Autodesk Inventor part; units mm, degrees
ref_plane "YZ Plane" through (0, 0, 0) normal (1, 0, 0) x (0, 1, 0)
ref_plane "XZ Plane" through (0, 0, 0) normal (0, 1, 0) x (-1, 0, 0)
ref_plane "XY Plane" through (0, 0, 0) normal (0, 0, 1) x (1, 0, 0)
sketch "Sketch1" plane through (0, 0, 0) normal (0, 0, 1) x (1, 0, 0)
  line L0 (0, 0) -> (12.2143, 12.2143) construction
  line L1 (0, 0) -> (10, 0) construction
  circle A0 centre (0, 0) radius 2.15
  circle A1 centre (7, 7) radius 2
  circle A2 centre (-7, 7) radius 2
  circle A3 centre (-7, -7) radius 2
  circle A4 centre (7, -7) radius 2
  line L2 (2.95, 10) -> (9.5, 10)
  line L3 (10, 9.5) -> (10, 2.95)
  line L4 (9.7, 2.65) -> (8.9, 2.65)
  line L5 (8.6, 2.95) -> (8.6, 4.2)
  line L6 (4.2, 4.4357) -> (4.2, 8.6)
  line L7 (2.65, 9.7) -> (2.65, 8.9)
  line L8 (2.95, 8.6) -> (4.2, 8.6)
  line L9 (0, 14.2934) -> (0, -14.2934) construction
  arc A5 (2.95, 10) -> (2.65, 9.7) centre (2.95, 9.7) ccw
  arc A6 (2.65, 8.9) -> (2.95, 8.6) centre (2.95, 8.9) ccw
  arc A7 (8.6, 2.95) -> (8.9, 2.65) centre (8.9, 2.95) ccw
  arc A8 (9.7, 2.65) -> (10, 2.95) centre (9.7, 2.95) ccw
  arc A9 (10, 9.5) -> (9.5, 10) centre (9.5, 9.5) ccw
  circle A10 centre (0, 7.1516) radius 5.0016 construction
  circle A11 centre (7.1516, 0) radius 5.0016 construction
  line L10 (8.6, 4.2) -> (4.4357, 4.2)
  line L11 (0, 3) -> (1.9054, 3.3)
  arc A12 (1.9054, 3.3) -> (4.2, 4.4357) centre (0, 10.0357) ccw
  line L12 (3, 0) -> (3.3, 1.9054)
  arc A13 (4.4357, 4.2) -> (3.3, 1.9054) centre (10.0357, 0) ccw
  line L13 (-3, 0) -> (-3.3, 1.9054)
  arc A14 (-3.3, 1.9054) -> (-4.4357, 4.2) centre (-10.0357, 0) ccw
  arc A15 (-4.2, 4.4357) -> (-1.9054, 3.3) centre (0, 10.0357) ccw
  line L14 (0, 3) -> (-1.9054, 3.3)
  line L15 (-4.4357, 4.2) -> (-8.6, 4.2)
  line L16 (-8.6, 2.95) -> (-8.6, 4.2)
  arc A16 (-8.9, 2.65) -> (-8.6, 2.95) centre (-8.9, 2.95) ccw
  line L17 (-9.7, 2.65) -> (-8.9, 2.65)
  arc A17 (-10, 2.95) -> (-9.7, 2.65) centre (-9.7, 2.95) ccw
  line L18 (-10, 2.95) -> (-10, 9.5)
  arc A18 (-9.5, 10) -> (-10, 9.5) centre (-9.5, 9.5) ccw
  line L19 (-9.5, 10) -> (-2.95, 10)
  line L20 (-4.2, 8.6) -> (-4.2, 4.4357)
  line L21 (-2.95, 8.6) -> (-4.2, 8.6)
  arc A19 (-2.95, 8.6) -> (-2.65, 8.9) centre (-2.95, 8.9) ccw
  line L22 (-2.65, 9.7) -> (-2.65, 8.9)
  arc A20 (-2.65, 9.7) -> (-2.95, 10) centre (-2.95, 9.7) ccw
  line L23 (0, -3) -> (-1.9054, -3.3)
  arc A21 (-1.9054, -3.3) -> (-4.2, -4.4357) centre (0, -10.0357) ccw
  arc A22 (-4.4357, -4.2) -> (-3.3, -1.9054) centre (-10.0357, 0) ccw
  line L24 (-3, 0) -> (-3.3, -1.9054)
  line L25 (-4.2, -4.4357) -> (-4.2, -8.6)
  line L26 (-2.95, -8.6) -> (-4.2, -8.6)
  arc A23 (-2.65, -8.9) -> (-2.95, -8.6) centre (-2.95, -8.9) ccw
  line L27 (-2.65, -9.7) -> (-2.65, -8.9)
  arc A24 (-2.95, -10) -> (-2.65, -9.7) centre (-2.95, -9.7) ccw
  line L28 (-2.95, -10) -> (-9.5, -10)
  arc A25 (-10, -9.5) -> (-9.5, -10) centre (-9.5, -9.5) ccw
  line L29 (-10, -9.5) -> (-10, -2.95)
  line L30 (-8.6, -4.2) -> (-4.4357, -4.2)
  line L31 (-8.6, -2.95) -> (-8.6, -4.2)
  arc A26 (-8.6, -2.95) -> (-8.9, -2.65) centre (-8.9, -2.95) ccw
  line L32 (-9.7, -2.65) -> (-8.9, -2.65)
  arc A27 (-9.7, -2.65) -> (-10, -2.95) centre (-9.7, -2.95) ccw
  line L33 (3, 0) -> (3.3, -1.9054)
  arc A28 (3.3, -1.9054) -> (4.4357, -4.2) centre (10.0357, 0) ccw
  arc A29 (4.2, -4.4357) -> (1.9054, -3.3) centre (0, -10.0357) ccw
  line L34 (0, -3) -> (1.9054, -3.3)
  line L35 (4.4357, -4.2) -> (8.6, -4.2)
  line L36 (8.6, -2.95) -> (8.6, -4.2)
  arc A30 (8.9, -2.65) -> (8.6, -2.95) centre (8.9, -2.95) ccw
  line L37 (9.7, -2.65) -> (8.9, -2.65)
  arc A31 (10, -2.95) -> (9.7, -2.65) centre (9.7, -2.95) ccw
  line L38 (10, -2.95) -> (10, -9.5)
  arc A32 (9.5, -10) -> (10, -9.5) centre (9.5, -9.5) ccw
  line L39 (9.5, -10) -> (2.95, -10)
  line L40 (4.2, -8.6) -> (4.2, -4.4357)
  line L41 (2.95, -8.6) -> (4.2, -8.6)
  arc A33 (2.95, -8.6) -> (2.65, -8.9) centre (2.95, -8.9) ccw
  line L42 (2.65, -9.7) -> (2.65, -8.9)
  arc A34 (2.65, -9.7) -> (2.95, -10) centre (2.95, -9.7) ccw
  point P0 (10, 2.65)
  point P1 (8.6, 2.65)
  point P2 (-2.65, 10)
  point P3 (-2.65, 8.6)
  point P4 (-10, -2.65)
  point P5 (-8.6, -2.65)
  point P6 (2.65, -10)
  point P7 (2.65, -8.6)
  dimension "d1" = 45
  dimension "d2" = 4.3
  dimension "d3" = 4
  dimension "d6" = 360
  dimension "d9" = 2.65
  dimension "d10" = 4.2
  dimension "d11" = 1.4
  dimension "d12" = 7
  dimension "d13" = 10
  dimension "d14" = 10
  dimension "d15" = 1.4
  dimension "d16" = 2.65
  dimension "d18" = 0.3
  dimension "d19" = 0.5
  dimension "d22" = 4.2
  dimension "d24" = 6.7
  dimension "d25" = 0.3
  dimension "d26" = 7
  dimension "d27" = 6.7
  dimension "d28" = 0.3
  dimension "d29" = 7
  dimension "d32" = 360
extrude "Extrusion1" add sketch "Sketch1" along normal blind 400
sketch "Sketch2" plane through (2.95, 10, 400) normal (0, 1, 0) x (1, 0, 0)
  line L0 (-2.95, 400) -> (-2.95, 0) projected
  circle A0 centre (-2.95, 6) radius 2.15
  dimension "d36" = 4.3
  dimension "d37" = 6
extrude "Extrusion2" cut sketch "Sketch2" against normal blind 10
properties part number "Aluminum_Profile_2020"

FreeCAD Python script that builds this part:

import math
import FreeCAD as App
import Part
import Sketcher
from FreeCAD import Vector
Q = App.Units.Quantity

doc = App.newDocument("Part")
body = doc.addObject("PartDesign::Body", "Body")

# Sketch on XY plane
sketch1 = doc.addObject("Sketcher::SketchObject", "Sketch")
body.addObject(sketch1)
sketch1.AttachmentSupport = (doc.XY_Plane, [""])
sketch1.MapMode = "FlatFace"
sketch1.addGeometry([
    Part.LineSegment(Vector(9.5, 10, 0), Vector(2.95, 10, 0)),  # 0
    Part.ArcOfCircle(Part.Circle(Vector(2.95, 9.7, 0), Vector(0, 0, 1), 0.3), math.radians(90), math.radians(180)),  # 1
    Part.LineSegment(Vector(2.65, 9.7, 0), Vector(2.65, 8.9, 0)),  # 2
    Part.ArcOfCircle(Part.Circle(Vector(2.95, 8.9, 0), Vector(0, 0, 1), 0.3), math.radians(180), math.radians(270)),  # 3
    Part.LineSegment(Vector(2.95, 8.6, 0), Vector(4.2, 8.6, 0)),  # 4
    Part.LineSegment(Vector(4.2, 8.6, 0), Vector(4.2, 4.44, 0)),  # 5
    Part.ArcOfCircle(Part.Circle(Vector(0, 10.04, 0), Vector(0, 0, 1), 7), math.radians(-74), math.radians(-53)),  # 6
    Part.LineSegment(Vector(1.91, 3.3, 0), Vector(0, 3, 0)),  # 7
    Part.LineSegment(Vector(0, 3, 0), Vector(-1.91, 3.3, 0)),  # 8
    Part.ArcOfCircle(Part.Circle(Vector(0, 10.04, 0), Vector(0, 0, 1), 7), math.radians(-127), math.radians(-106)),  # 9
    Part.LineSegment(Vector(-4.2, 4.44, 0), Vector(-4.2, 8.6, 0)),  # 10
    Part.LineSegment(Vector(-4.2, 8.6, 0), Vector(-2.95, 8.6, 0)),  # 11
    Part.ArcOfCircle(Part.Circle(Vector(-2.95, 8.9, 0), Vector(0, 0, 1), 0.3), math.radians(-90), math.radians(0)),  # 12
    Part.LineSegment(Vector(-2.65, 8.9, 0), Vector(-2.65, 9.7, 0)),  # 13
    Part.ArcOfCircle(Part.Circle(Vector(-2.95, 9.7, 0), Vector(0, 0, 1), 0.3), math.radians(0), math.radians(90)),  # 14
    Part.LineSegment(Vector(-2.95, 10, 0), Vector(-9.5, 10, 0)),  # 15
    Part.ArcOfCircle(Part.Circle(Vector(-9.5, 9.5, 0), Vector(0, 0, 1), 0.5), math.radians(90), math.radians(180)),  # 16
    Part.LineSegment(Vector(-10, 9.5, 0), Vector(-10, 2.95, 0)),  # 17
    Part.ArcOfCircle(Part.Circle(Vector(-9.7, 2.95, 0), Vector(0, 0, 1), 0.3), math.radians(180), math.radians(270)),  # 18
    Part.LineSegment(Vector(-9.7, 2.65, 0), Vector(-8.9, 2.65, 0)),  # 19
    Part.ArcOfCircle(Part.Circle(Vector(-8.9, 2.95, 0), Vector(0, 0, 1), 0.3), math.radians(-90), math.radians(0)),  # 20
    Part.LineSegment(Vector(-8.6, 2.95, 0), Vector(-8.6, 4.2, 0)),  # 21
    Part.LineSegment(Vector(-8.6, 4.2, 0), Vector(-4.44, 4.2, 0)),  # 22
    Part.ArcOfCircle(Part.Circle(Vector(-10.04, 0, 0), Vector(0, 0, 1), 7), math.radians(16), math.radians(37)),  # 23
    Part.LineSegment(Vector(-3.3, 1.91, 0), Vector(-3, 0, 0)),  # 24
    Part.LineSegment(Vector(-3, 0, 0), Vector(-3.3, -1.91, 0)),  # 25
    Part.ArcOfCircle(Part.Circle(Vector(-10.04, 0, 0), Vector(0, 0, 1), 7), math.radians(-37), math.radians(-16)),  # 26
    Part.LineSegment(Vector(-4.44, -4.2, 0), Vector(-8.6, -4.2, 0)),  # 27
    Part.LineSegment(Vector(-8.6, -4.2, 0), Vector(-8.6, -2.95, 0)),  # 28
    Part.ArcOfCircle(Part.Circle(Vector(-8.9, -2.95, 0), Vector(0, 0, 1), 0.3), math.radians(0), math.radians(90)),  # 29
    Part.LineSegment(Vector(-8.9, -2.65, 0), Vector(-9.7, -2.65, 0)),  # 30
    Part.ArcOfCircle(Part.Circle(Vector(-9.7, -2.95, 0), Vector(0, 0, 1), 0.3), math.radians(90), math.radians(180)),  # 31
    Part.LineSegment(Vector(-10, -2.95, 0), Vector(-10, -9.5, 0)),  # 32
    Part.ArcOfCircle(Part.Circle(Vector(-9.5, -9.5, 0), Vector(0, 0, 1), 0.5), math.radians(180), math.radians(270)),  # 33
    Part.LineSegment(Vector(-9.5, -10, 0), Vector(-2.95, -10, 0)),  # 34
    Part.ArcOfCircle(Part.Circle(Vector(-2.95, -9.7, 0), Vector(0, 0, 1), 0.3), math.radians(-90), math.radians(0)),  # 35
    Part.LineSegment(Vector(-2.65, -9.7, 0), Vector(-2.65, -8.9, 0)),  # 36
    Part.ArcOfCircle(Part.Circle(Vector(-2.95, -8.9, 0), Vector(0, 0, 1), 0.3), math.radians(0), math.radians(90)),  # 37
    Part.LineSegment(Vector(-2.95, -8.6, 0), Vector(-4.2, -8.6, 0)),  # 38
    Part.LineSegment(Vector(-4.2, -8.6, 0), Vector(-4.2, -4.44, 0)),  # 39
    Part.ArcOfCircle(Part.Circle(Vector(0, -10.04, 0), Vector(0, 0, 1), 7), math.radians(106), math.radians(127)),  # 40
    Part.LineSegment(Vector(-1.91, -3.3, 0), Vector(0, -3, 0)),  # 41
    Part.LineSegment(Vector(0, -3, 0), Vector(1.91, -3.3, 0)),  # 42
    Part.ArcOfCircle(Part.Circle(Vector(0, -10.04, 0), Vector(0, 0, 1), 7), math.radians(53), math.radians(74)),  # 43
    Part.LineSegment(Vector(4.2, -4.44, 0), Vector(4.2, -8.6, 0)),  # 44
    Part.LineSegment(Vector(4.2, -8.6, 0), Vector(2.95, -8.6, 0)),  # 45
    Part.ArcOfCircle(Part.Circle(Vector(2.95, -8.9, 0), Vector(0, 0, 1), 0.3), math.radians(90), math.radians(180)),  # 46
    Part.LineSegment(Vector(2.65, -8.9, 0), Vector(2.65, -9.7, 0)),  # 47
    Part.ArcOfCircle(Part.Circle(Vector(2.95, -9.7, 0), Vector(0, 0, 1), 0.3), math.radians(180), math.radians(270)),  # 48
    Part.LineSegment(Vector(2.95, -10, 0), Vector(9.5, -10, 0)),  # 49
    Part.ArcOfCircle(Part.Circle(Vector(9.5, -9.5, 0), Vector(0, 0, 1), 0.5), math.radians(-90), math.radians(0)),  # 50
    Part.LineSegment(Vector(10, -9.5, 0), Vector(10, -2.95, 0)),  # 51
    Part.ArcOfCircle(Part.Circle(Vector(9.7, -2.95, 0), Vector(0, 0, 1), 0.3), math.radians(0), math.radians(90)),  # 52
    Part.LineSegment(Vector(9.7, -2.65, 0), Vector(8.9, -2.65, 0)),  # 53
    Part.ArcOfCircle(Part.Circle(Vector(8.9, -2.95, 0), Vector(0, 0, 1), 0.3), math.radians(90), math.radians(180)),  # 54
    Part.LineSegment(Vector(8.6, -2.95, 0), Vector(8.6, -4.2, 0)),  # 55
    Part.LineSegment(Vector(8.6, -4.2, 0), Vector(4.44, -4.2, 0)),  # 56
    Part.ArcOfCircle(Part.Circle(Vector(10.04, 0, 0), Vector(0, 0, 1), 7), math.radians(-164), math.radians(-143)),  # 57
    Part.LineSegment(Vector(3.3, -1.91, 0), Vector(3, 0, 0)),  # 58
    Part.LineSegment(Vector(3, 0, 0), Vector(3.3, 1.91, 0)),  # 59
    Part.ArcOfCircle(Part.Circle(Vector(10.04, 0, 0), Vector(0, 0, 1), 7), math.radians(143), math.radians(164)),  # 60
    Part.LineSegment(Vector(4.44, 4.2, 0), Vector(8.6, 4.2, 0)),  # 61
    Part.LineSegment(Vector(8.6, 4.2, 0), Vector(8.6, 2.95, 0)),  # 62
    Part.ArcOfCircle(Part.Circle(Vector(8.9, 2.95, 0), Vector(0, 0, 1), 0.3), math.radians(180), math.radians(270)),  # 63
    Part.LineSegment(Vector(8.9, 2.65, 0), Vector(9.7, 2.65, 0)),  # 64
    Part.ArcOfCircle(Part.Circle(Vector(9.7, 2.95, 0), Vector(0, 0, 1), 0.3), math.radians(-90), math.radians(0)),  # 65
    Part.LineSegment(Vector(10, 2.95, 0), Vector(10, 9.5, 0)),  # 66
    Part.ArcOfCircle(Part.Circle(Vector(9.5, 9.5, 0), Vector(0, 0, 1), 0.5), math.radians(0), math.radians(90)),  # 67
    Part.Circle(Vector(-7, -7, 0), Vector(0, 0, 1), 2),  # 68
    Part.Circle(Vector(7, -7, 0), Vector(0, 0, 1), 2),  # 69
    Part.Circle(Vector(-7, 7, 0), Vector(0, 0, 1), 2),  # 70
    Part.Circle(Vector(0, 0, 0), Vector(0, 0, 1), 2.15),  # 71
    Part.Circle(Vector(7, 7, 0), Vector(0, 0, 1), 2),  # 72
], False)
sketch1.addConstraint([
    Sketcher.Constraint("Tangent", 0, 2, 1, 1),
    Sketcher.Constraint("Tangent", 1, 2, 2, 1),
    Sketcher.Constraint("Tangent", 2, 2, 3, 1),
    Sketcher.Constraint("Tangent", 3, 2, 4, 1),
    Sketcher.Constraint("Coincident", 4, 2, 5, 1),
    Sketcher.Constraint("Coincident", 5, 2, 6, 2),
    Sketcher.Constraint("Coincident", 6, 1, 7, 1),
    Sketcher.Constraint("Coincident", 7, 2, 8, 1),
    Sketcher.Constraint("Coincident", 8, 2, 9, 2),
    Sketcher.Constraint("Coincident", 9, 1, 10, 1),
    Sketcher.Constraint("Coincident", 10, 2, 11, 1),
    Sketcher.Constraint("Tangent", 11, 2, 12, 1),
    Sketcher.Constraint("Tangent", 12, 2, 13, 1),
    Sketcher.Constraint("Tangent", 13, 2, 14, 1),
    Sketcher.Constraint("Tangent", 14, 2, 15, 1),
    Sketcher.Constraint("Tangent", 15, 2, 16, 1),
    Sketcher.Constraint("Tangent", 16, 2, 17, 1),
    Sketcher.Constraint("Tangent", 17, 2, 18, 1),
    Sketcher.Constraint("Tangent", 18, 2, 19, 1),
    Sketcher.Constraint("Tangent", 19, 2, 20, 1),
    Sketcher.Constraint("Tangent", 20, 2, 21, 1),
    Sketcher.Constraint("Coincident", 21, 2, 22, 1),
    Sketcher.Constraint("Coincident", 22, 2, 23, 2),
    Sketcher.Constraint("Coincident", 23, 1, 24, 1),
    Sketcher.Constraint("Coincident", 24, 2, 25, 1),
    Sketcher.Constraint("Coincident", 25, 2, 26, 2),
    Sketcher.Constraint("Coincident", 26, 1, 27, 1),
    Sketcher.Constraint("Coincident", 27, 2, 28, 1),
    Sketcher.Constraint("Tangent", 28, 2, 29, 1),
    Sketcher.Constraint("Tangent", 29, 2, 30, 1),
    Sketcher.Constraint("Tangent", 30, 2, 31, 1),
    Sketcher.Constraint("Tangent", 31, 2, 32, 1),
    Sketcher.Constraint("Tangent", 32, 2, 33, 1),
    Sketcher.Constraint("Tangent", 33, 2, 34, 1),
    Sketcher.Constraint("Tangent", 34, 2, 35, 1),
    Sketcher.Constraint("Tangent", 35, 2, 36, 1),
    Sketcher.Constraint("Tangent", 36, 2, 37, 1),
    Sketcher.Constraint("Tangent", 37, 2, 38, 1),
    Sketcher.Constraint("Coincident", 38, 2, 39, 1),
    Sketcher.Constraint("Coincident", 39, 2, 40, 2),
    Sketcher.Constraint("Coincident", 40, 1, 41, 1),
    Sketcher.Constraint("Coincident", 41, 2, 42, 1),
    Sketcher.Constraint("Coincident", 42, 2, 43, 2),
    Sketcher.Constraint("Coincident", 43, 1, 44, 1),
    Sketcher.Constraint("Coincident", 44, 2, 45, 1),
    Sketcher.Constraint("Tangent", 45, 2, 46, 1),
    Sketcher.Constraint("Tangent", 46, 2, 47, 1),
    Sketcher.Constraint("Tangent", 47, 2, 48, 1),
    Sketcher.Constraint("Tangent", 48, 2, 49, 1),
    Sketcher.Constraint("Tangent", 49, 2, 50, 1),
    Sketcher.Constraint("Tangent", 50, 2, 51, 1),
    Sketcher.Constraint("Tangent", 51, 2, 52, 1),
    Sketcher.Constraint("Tangent", 52, 2, 53, 1),
    Sketcher.Constraint("Tangent", 53, 2, 54, 1),
    Sketcher.Constraint("Tangent", 54, 2, 55, 1),
    Sketcher.Constraint("Coincident", 55, 2, 56, 1),
    Sketcher.Constraint("Coincident", 56, 2, 57, 2),
    Sketcher.Constraint("Coincident", 57, 1, 58, 1),
    Sketcher.Constraint("Coincident", 58, 2, 59, 1),
    Sketcher.Constraint("Coincident", 59, 2, 60, 2),
    Sketcher.Constraint("Coincident", 60, 1, 61, 1),
    Sketcher.Constraint("Coincident", 61, 2, 62, 1),
    Sketcher.Constraint("Tangent", 62, 2, 63, 1),
    Sketcher.Constraint("Tangent", 63, 2, 64, 1),
    Sketcher.Constraint("Tangent", 64, 2, 65, 1),
    Sketcher.Constraint("Tangent", 65, 2, 66, 1),
    Sketcher.Constraint("Tangent", 66, 2, 67, 1),
    Sketcher.Constraint("Tangent", 67, 2, 0, 1),
    Sketcher.Constraint("Horizontal", 0),
    Sketcher.Constraint("Vertical", 2),
    Sketcher.Constraint("Horizontal", 4),
    Sketcher.Constraint("Vertical", 5),
    Sketcher.Constraint("Vertical", 10),
    Sketcher.Constraint("Horizontal", 11),
    Sketcher.Constraint("Vertical", 13),
    Sketcher.Constraint("Horizontal", 15),
    Sketcher.Constraint("Vertical", 17),
    Sketcher.Constraint("Horizontal", 19),
    Sketcher.Constraint("Vertical", 21),
    Sketcher.Constraint("Horizontal", 22),
    Sketcher.Constraint("Horizontal", 27),
    Sketcher.Constraint("Vertical", 28),
    Sketcher.Constraint("Horizontal", 30),
    Sketcher.Constraint("Vertical", 32),
    Sketcher.Constraint("Horizontal", 34),
    Sketcher.Constraint("Vertical", 36),
    Sketcher.Constraint("Horizontal", 38),
    Sketcher.Constraint("Vertical", 39),
    Sketcher.Constraint("Vertical", 44),
    Sketcher.Constraint("Horizontal", 45),
    Sketcher.Constraint("Vertical", 47),
    Sketcher.Constraint("Horizontal", 49),
    Sketcher.Constraint("Vertical", 51),
    Sketcher.Constraint("Horizontal", 53),
    Sketcher.Constraint("Vertical", 55),
    Sketcher.Constraint("Horizontal", 56),
    Sketcher.Constraint("Horizontal", 61),
    Sketcher.Constraint("Vertical", 62),
    Sketcher.Constraint("Horizontal", 64),
    Sketcher.Constraint("Vertical", 66),
    Sketcher.Constraint("Coincident", 71, 3, -1, 1),
    Sketcher.Constraint("Coincident", 9, 3, 6, 3),
    Sketcher.Constraint("Coincident", 26, 3, 23, 3),
    Sketcher.Constraint("Coincident", 43, 3, 40, 3),
    Sketcher.Constraint("Coincident", 60, 3, 57, 3),
    Sketcher.Constraint("Equal", 1, 3),
    Sketcher.Constraint("Equal", 6, 9),
    Sketcher.Constraint("Equal", 3, 12),
    Sketcher.Constraint("Equal", 12, 14),
    Sketcher.Constraint("Equal", 14, 18),
    Sketcher.Constraint("Equal", 18, 20),
    Sketcher.Constraint("Equal", 9, 23),
    Sketcher.Constraint("Equal", 23, 26),
    Sketcher.Constraint("Equal", 20, 29),
    Sketcher.Constraint("Equal", 29, 31),
    Sketcher.Constraint("Equal", 16, 33),
    Sketcher.Constraint("Equal", 31, 35),
    Sketcher.Constraint("Equal", 35, 37),
    Sketcher.Constraint("Equal", 26, 40),
    Sketcher.Constraint("Equal", 40, 43),
    Sketcher.Constraint("Equal", 37, 46),
    Sketcher.Constraint("Equal", 46, 48),
    Sketcher.Constraint("Equal", 33, 50),
    Sketcher.Constraint("Equal", 48, 52),
    Sketcher.Constraint("Equal", 52, 54),
    Sketcher.Constraint("Equal", 43, 57),
    Sketcher.Constraint("Equal", 57, 60),
    Sketcher.Constraint("Equal", 54, 63),
    Sketcher.Constraint("Equal", 63, 65),
    Sketcher.Constraint("Equal", 50, 67),
    Sketcher.Constraint("Equal", 68, 69),
    Sketcher.Constraint("Equal", 69, 70),
    Sketcher.Constraint("Equal", 70, 72),
    Sketcher.Constraint("Symmetric", 1, 3, 35, 3, -1, 1),
    Sketcher.Constraint("Symmetric", 6, 3, 40, 3, -1, 1),
    Sketcher.Constraint("Symmetric", 12, 3, 46, 3, -1, 1),
    Sketcher.Constraint("Symmetric", 16, 3, 50, 3, -1, 1),
    Sketcher.Constraint("Symmetric", 20, 3, 54, 3, -1, 1),
    Sketcher.Constraint("Symmetric", 23, 3, 57, 3, -1, 1),
    Sketcher.Constraint("Symmetric", 29, 3, 63, 3, -1, 1),
    Sketcher.Constraint("Symmetric", 69, 3, 70, 3, -1, 1),
    Sketcher.Constraint("Symmetric", 68, 3, 72, 3, -1, 1),
    Sketcher.Constraint("Symmetric", 4, 2, 38, 2, -1, 1),
    Sketcher.Constraint("Symmetric", 7, 2, 41, 2, -1, 1),
    Sketcher.Constraint("Symmetric", 24, 2, 58, 2, -1, 1),
    Sketcher.Constraint("Symmetric", 3, 3, 12, 3, -2),
    Sketcher.Constraint("Symmetric", 33, 3, 50, 3, -2),
    Sketcher.Constraint("Symmetric", 29, 3, 54, 3, -2),
    Sketcher.Constraint("Symmetric", 68, 3, 69, 3, -2),
    Sketcher.Constraint("Symmetric", 6, 1, 8, 2, -2),
    Sketcher.Constraint("Symmetric", 26, 1, 56, 2, -2),
    Sketcher.Constraint("PointOnObject", 7, 2, -2),
    Sketcher.Constraint("PointOnObject", 24, 2, -1),
    Sketcher.Constraint("Perpendicular", 7, 24),
    Sketcher.Constraint("Perpendicular", 8, 25),
    Sketcher.Constraint("Perpendicular", 24, 41),
    Sketcher.Constraint("Perpendicular", 25, 42),
    Sketcher.Constraint("Perpendicular", 41, 58),
    Sketcher.Constraint("Perpendicular", 42, 59),
    Sketcher.Constraint("Horizontal", 5, 2, 9, 1),
    Sketcher.Constraint("Horizontal", 39, 2, 43, 1),
    Sketcher.Constraint("Horizontal", 22, 2, 60, 1),
    Sketcher.Constraint("Vertical", 52, 3, 65, 3),
    Sketcher.Constraint("Vertical", 22, 2, 26, 1),
    Sketcher.Constraint("Equal", 64, 2),
    Sketcher.Constraint("Equal", 61, 5),
    Sketcher.Constraint("Equal", 49, 17),
    Sketcher.Constraint("Equal", 45, 21),
    Sketcher.Constraint("Equal", 8, 24),
    Sketcher.Constraint("Diameter", 68, Q("4 mm")),
    Sketcher.Constraint("Radius", 6, Q("7 mm")),
    Sketcher.Constraint("Diameter", 71, Q("4.3 mm")),
    Sketcher.Constraint("Radius", 1, Q("0.3 mm")),
    Sketcher.Constraint("Radius", 16, Q("0.5 mm")),
    Sketcher.Constraint("DistanceX", 68, 3, -1, 1, Q("7 mm")),
    Sketcher.Constraint("DistanceY", 68, 3, -1, 1, Q("7 mm")),
    Sketcher.Constraint("DistanceY", -1, 1, 0, 2, Q("10 mm")),
    Sketcher.Constraint("DistanceX", 16, 2, -1, 1, Q("10 mm")),
    Sketcher.Constraint("DistanceX", -1, 1, 4, 2, Q("4.2 mm")),
    Sketcher.Constraint("DistanceX", -1, 1, 1, 2, Q("2.65 mm")),
    Sketcher.Constraint("DistanceX", 19, 1, 19, 2, Q("0.8 mm")),
    Sketcher.Constraint("DistanceY", -1, 1, 7, 2, Q("3 mm")),
    Sketcher.Constraint("DistanceY", -1, 1, 6, 1, Q("3.3 mm")),
    Sketcher.Constraint("DistanceX", 22, 1, 22, 2, Q("4.1643 mm")),
])
pad1 = doc.addObject("PartDesign::Pad", "Pad")
body.addObject(pad1)
pad1.Profile = sketch1
pad1.Length = 400

# Sketch on XZ plane
sketch2 = doc.addObject("Sketcher::SketchObject", "Sketch001")
body.addObject(sketch2)
sketch2.AttachmentSupport = (doc.XZ_Plane, [""])
sketch2.MapMode = "FlatFace"
sketch2.AttachmentOffset = App.Placement(Vector(0, 0, -10), App.Rotation())
sketch2.addGeometry(Part.Circle(Vector(0, 394, 0), Vector(0, 0, 1), 2.1), False)
sketch2.addConstraint([
    Sketcher.Constraint("PointOnObject", 0, 3, -2),
    Sketcher.Constraint("Diameter", 0, Q("4.3 mm")),
    Sketcher.Constraint("DistanceY", -1, 1, 0, 3, Q("394 mm")),
])
pocket1 = doc.addObject("PartDesign::Pocket", "Pocket")
body.addObject(pocket1)
pocket1.Profile = sketch2
pocket1.Length = 10
pocket1.Reversed = True

doc.recompute()
